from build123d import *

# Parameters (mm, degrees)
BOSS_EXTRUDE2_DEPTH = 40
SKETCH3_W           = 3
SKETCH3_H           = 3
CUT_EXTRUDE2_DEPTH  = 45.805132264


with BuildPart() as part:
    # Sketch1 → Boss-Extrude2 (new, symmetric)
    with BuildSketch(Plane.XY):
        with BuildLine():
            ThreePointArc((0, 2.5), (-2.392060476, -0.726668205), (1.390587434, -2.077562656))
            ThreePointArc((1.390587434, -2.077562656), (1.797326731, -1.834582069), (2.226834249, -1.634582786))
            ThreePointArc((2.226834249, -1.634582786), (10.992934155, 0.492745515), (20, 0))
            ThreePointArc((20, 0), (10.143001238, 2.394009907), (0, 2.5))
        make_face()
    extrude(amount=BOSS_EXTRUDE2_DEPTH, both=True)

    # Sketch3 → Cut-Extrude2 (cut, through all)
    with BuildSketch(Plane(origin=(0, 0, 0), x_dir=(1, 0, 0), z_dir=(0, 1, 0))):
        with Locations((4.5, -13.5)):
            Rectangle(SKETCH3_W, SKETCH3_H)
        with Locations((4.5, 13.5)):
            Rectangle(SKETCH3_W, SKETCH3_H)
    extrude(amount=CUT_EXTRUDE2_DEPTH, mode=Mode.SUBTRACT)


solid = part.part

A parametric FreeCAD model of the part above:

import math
import FreeCAD as App
import Part
import Sketcher

doc = App.newDocument("Part")
body = doc.addObject("PartDesign::Body", "Body")

# Sketch on XY plane
sketch1 = doc.addObject("Sketcher::SketchObject", "Sketch")
body.addObject(sketch1)
sketch1.AttachmentSupport = (doc.XY_Plane, [""])
sketch1.MapMode = "FlatFace"
sketch1.addGeometry([
    Part.ArcOfCircle(Part.Circle(App.Vector(0, 0, 0), App.Vector(0, 0, 1), 2.5), math.radians(90), math.radians(303.795819)),
    Part.ArcOfCircle(Part.Circle(App.Vector(3.957679, -5.912844, 0), App.Vector(0, 0, 1), 4.615122), math.radians(112.026652), math.radians(123.795819)),
    Part.ArcOfCircle(Part.Circle(App.Vector(13.825207, -30.303162, 0), App.Vector(0, 0, 1), 30.925875), math.radians(78.482672), math.radians(112.026651)),
    Part.ArcOfCircle(Part.Circle(App.Vector(4.608261, -41.88391, 0), App.Vector(0, 0, 1), 44.622501), math.radians(69.822341), math.radians(95.927626)),
], False)
sketch1.addConstraint([
    Sketcher.Constraint("Tangent", 0, 2, 1, 2),
    Sketcher.Constraint("Tangent", 1, 1, 2, 2),
    Sketcher.Constraint("Coincident", 2, 1, 3, 1),
    Sketcher.Constraint("Coincident", 3, 2, 0, 1),
    Sketcher.Constraint("Coincident", 0, 3, -1, 1),
    Sketcher.Constraint("PointOnObject", 2, 1, -1),
    Sketcher.Constraint("PointOnObject", 3, 2, -2),
    Sketcher.Constraint("Radius", 0, 2.5),
    Sketcher.Constraint("DistanceX", -1, 1, 2, 1, 20.0),
    Sketcher.Constraint("Radius", 3, 44.622501),
    Sketcher.Constraint("Radius", 1, 4.615122),
    Sketcher.Constraint("Radius", 2, 30.925875),
    Sketcher.Constraint("DistanceY", 2, 3, 0, 2, 28.2256),
])
pad1 = doc.addObject("PartDesign::Pad", "Pad")
body.addObject(pad1)
pad1.Profile = sketch1
pad1.Length = 80
pad1.Midplane = True

# Sketch on XZ plane
sketch2 = doc.addObject("Sketcher::SketchObject", "Sketch001")
body.addObject(sketch2)
sketch2.AttachmentSupport = (doc.XZ_Plane, [""])
sketch2.MapMode = "FlatFace"
sketch2.addGeometry([
    Part.LineSegment(App.Vector(3, 12, 0), App.Vector(3, 15, 0)),  # 0
    Part.LineSegment(App.Vector(3, 15, 0), App.Vector(6, 15, 0)),  # 1
    Part.LineSegment(App.Vector(6, 15, 0), App.Vector(6, 12, 0)),  # 2
    Part.LineSegment(App.Vector(6, 12, 0), App.Vector(3, 12, 0)),  # 3
    Part.LineSegment(App.Vector(3, -15, 0), App.Vector(3, -12, 0)),  # 4
    Part.LineSegment(App.Vector(3, -12, 0), App.Vector(6, -12, 0)),  # 5
    Part.LineSegment(App.Vector(6, -12, 0), App.Vector(6, -15, 0)),  # 6
    Part.LineSegment(App.Vector(6, -15, 0), App.Vector(3, -15, 0)),  # 7
], False)
sketch2.addConstraint([
    Sketcher.Constraint("Coincident", 0, 2, 1, 1),
    Sketcher.Constraint("Coincident", 1, 2, 2, 1),
    Sketcher.Constraint("Coincident", 2, 2, 3, 1),
    Sketcher.Constraint("Coincident", 3, 2, 0, 1),
    Sketcher.Constraint("Coincident", 4, 2, 5, 1),
    Sketcher.Constraint("Coincident", 5, 2, 6, 1),
    Sketcher.Constraint("Coincident", 6, 2, 7, 1),
    Sketcher.Constraint("Coincident", 7, 2, 4, 1),
    Sketcher.Constraint("Vertical", 0),
    Sketcher.Constraint("Horizontal", 1),
    Sketcher.Constraint("Vertical", 2),
    Sketcher.Constraint("Horizontal", 3),
    Sketcher.Constraint("Vertical", 4),
    Sketcher.Constraint("Horizontal", 5),
    Sketcher.Constraint("Vertical", 6),
    Sketcher.Constraint("Horizontal", 7),
    Sketcher.Constraint("Symmetric", 3, 2, 4, 2, -1),
    Sketcher.Constraint("Symmetric", 1, 2, 6, 2, -1),
    Sketcher.Constraint("Equal", 7, 0),
    Sketcher.Constraint("DistanceX", 1, 1, 1, 2, 3.0),
    Sketcher.Constraint("DistanceX", -1, 1, 0, 2, 3.0),
    Sketcher.Constraint("DistanceY", -1, 1, 0, 2, 15.0),
])
pocket1 = doc.addObject("PartDesign::Pocket", "Pocket")
body.addObject(pocket1)
pocket1.Profile = sketch2
pocket1.Type = "ThroughAll"

doc.recompute()
